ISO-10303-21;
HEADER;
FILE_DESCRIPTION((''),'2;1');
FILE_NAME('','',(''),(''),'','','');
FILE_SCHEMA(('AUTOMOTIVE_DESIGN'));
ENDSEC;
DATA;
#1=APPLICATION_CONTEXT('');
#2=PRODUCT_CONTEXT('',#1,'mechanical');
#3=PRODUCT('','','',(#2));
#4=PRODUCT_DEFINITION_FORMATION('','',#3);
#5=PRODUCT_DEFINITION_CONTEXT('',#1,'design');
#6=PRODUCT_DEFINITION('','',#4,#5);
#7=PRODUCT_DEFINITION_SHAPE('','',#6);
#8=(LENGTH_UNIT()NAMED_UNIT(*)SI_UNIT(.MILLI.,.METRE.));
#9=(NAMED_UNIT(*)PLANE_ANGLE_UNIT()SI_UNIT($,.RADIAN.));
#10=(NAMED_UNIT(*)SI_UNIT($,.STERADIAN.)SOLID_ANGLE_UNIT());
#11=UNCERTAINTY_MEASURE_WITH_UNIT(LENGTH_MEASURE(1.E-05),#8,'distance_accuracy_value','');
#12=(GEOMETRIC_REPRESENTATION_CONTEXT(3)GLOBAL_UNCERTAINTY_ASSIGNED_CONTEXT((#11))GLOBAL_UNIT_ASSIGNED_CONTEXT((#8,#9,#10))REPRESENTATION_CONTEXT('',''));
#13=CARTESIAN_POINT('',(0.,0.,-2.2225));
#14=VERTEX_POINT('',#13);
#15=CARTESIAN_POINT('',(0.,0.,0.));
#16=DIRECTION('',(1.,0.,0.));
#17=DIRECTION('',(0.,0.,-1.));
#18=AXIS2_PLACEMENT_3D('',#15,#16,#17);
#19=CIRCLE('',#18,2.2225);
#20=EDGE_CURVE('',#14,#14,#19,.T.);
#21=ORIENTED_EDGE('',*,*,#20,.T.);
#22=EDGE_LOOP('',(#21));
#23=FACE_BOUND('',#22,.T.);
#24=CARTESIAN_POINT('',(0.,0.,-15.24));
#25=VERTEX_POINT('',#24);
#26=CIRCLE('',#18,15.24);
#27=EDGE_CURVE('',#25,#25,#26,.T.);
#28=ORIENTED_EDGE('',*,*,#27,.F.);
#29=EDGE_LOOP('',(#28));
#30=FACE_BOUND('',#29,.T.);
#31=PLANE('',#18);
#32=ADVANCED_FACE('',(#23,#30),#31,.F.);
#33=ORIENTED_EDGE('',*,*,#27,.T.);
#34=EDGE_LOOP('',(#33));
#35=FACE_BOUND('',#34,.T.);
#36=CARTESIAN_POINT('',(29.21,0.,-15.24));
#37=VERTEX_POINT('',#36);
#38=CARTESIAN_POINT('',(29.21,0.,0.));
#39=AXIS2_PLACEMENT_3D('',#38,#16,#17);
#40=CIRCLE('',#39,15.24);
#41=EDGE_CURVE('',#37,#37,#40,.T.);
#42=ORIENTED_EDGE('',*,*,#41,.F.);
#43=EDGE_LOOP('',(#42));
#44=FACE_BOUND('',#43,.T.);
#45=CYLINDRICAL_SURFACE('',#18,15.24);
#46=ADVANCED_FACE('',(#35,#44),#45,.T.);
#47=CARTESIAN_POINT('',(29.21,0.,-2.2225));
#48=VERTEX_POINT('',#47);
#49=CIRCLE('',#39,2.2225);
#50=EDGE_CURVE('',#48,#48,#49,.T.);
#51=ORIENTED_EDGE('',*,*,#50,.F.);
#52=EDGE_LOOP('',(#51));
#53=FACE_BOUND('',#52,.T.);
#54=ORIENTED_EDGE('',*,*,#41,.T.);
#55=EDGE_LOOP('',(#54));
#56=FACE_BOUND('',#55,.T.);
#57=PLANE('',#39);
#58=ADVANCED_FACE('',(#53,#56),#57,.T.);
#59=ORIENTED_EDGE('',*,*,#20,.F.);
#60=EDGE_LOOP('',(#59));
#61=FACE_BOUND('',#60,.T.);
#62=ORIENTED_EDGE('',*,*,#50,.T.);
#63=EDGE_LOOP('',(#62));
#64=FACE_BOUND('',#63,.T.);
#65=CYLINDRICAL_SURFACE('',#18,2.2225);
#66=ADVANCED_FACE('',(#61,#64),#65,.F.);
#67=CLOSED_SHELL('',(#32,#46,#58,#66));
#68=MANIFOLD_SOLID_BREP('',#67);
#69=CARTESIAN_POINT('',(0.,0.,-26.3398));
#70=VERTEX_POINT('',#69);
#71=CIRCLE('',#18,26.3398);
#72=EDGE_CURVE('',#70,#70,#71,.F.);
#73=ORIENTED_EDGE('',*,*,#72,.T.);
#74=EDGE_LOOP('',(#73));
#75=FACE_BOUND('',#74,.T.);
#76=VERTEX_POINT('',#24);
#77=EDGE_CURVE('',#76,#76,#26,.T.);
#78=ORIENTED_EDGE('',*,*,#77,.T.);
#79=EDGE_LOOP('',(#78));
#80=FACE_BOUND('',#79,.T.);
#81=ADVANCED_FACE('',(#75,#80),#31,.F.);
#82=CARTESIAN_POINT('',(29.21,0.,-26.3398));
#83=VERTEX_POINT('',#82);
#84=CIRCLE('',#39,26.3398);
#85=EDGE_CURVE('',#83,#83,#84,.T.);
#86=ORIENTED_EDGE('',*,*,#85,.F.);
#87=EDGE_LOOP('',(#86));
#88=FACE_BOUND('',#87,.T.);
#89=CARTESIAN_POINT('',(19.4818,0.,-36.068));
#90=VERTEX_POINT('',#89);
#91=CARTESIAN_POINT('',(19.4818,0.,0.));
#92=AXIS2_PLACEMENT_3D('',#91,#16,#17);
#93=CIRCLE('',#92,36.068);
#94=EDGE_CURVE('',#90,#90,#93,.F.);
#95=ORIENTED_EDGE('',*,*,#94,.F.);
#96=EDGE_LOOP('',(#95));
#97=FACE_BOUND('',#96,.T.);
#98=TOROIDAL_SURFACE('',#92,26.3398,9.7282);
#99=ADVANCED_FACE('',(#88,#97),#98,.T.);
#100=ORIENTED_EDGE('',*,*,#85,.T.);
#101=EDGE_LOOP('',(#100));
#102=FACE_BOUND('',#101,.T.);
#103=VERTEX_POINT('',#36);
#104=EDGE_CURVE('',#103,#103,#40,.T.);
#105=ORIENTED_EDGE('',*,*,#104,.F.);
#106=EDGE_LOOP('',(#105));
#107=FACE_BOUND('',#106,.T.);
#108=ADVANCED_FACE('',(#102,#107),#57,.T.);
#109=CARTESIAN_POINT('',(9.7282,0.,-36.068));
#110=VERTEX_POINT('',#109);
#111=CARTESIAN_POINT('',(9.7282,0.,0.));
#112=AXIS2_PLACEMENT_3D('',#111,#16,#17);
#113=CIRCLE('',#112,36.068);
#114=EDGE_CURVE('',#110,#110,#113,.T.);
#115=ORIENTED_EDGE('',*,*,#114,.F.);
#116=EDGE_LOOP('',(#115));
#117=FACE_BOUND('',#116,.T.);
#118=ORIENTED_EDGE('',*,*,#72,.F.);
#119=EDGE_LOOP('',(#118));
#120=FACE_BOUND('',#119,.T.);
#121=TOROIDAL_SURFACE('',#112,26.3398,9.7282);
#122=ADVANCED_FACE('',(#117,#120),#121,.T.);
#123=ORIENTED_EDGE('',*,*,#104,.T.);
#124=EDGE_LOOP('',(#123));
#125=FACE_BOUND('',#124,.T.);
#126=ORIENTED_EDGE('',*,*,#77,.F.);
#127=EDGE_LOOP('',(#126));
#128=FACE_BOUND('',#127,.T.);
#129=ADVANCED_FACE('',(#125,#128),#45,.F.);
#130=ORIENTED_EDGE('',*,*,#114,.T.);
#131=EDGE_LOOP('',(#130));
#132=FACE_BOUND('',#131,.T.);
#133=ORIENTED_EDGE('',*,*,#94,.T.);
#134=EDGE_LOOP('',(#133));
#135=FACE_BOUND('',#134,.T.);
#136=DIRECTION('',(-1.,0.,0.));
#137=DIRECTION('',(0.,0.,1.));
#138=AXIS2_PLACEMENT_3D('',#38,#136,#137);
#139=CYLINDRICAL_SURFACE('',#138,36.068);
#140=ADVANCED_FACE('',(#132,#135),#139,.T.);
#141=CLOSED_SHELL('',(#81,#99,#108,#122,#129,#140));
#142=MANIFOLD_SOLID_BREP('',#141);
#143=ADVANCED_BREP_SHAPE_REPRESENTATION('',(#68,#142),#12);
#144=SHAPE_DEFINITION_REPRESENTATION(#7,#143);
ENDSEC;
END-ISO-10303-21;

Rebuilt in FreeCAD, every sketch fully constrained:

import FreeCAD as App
import Part
import Sketcher

V = App.Vector
Q = App.Units.Quantity


def edges_at(feature, points):
    """Names of the edges that pass closest to the given points."""
    edges = feature.Shape.Edges
    near = lambda p: min(range(len(edges)), key=lambda i: edges[i].distToShape(Part.Vertex(*p))[0])
    return sorted({f"Edge{near(p) + 1}" for p in points})

doc = App.newDocument("Part")
params = doc.addObject("Spreadsheet::Sheet", "Params")
for row, (alias, value) in enumerate([
    ("sketch1_diameter", "2.84 in"),
    ("pad1_length", "1.15 in"),
    ("fillet_radius", "0.383 in"),
    ("fillet2_radius", "0.383 in"),
    ("sketch2_diameter", "1.2 in"),
    ("sketch3_diameter", "1.2 in"),
    ("pad2_length", "1.15 in"),
    ("sketch4_diameter", "0.175 in"),
    ("pocket2_length", "1.15 in"),
], start=1):
    params.set(f"A{row}", alias)
    params.set(f"B{row}", "=" + value)
    params.setAlias(f"B{row}", alias)

body = doc.addObject("PartDesign::Body", "Body")

# Sketch on YZ plane
sketch1 = doc.addObject("Sketcher::SketchObject", "Sketch")
body.addObject(sketch1)
sketch1.AttachmentSupport = (doc.YZ_Plane, [""])
sketch1.MapMode = "FlatFace"
sketch1.addGeometry(Part.Circle(V(0, 0, 0), V(0, 0, 1), 36), False)
sketch1.addConstraint([
    Sketcher.Constraint("Coincident", 0, 3, -1, 1),
    Sketcher.Constraint("Diameter", 0, Q("2.84 in")),
])
sketch1.setExpression("Constraints[1]", "Params.sketch1_diameter")
pad1 = doc.addObject("PartDesign::Pad", "Pad")
body.addObject(pad1)
pad1.Profile = sketch1
pad1.setExpression("Length", "Params.pad1_length")
doc.recompute()

fillet = doc.addObject("PartDesign::Fillet", "Fillet")
body.addObject(fillet)
fillet.Base = (pad1, edges_at(pad1, [(29.21, 0, -36.068)]))
fillet.setExpression("Radius", "Params.fillet_radius")
doc.recompute()

fillet2 = doc.addObject("PartDesign::Fillet", "Fillet001")
body.addObject(fillet2)
fillet2.Base = (fillet, edges_at(fillet, [(0, 0, -36.068)]))
fillet2.setExpression("Radius", "Params.fillet2_radius")

# Sketch on YZ plane
sketch2 = doc.addObject("Sketcher::SketchObject", "Sketch001")
body.addObject(sketch2)
sketch2.AttachmentSupport = (doc.YZ_Plane, [""])
sketch2.MapMode = "FlatFace"
sketch2.AttachmentOffset = App.Placement(V(0, 0, 1.15 * 25.4), App.Rotation())
sketch2.addGeometry(Part.Circle(V(0, 0, 0), V(0, 0, 1), 15), False)
sketch2.addConstraint([
    Sketcher.Constraint("Coincident", 0, 3, -1, 1),
    Sketcher.Constraint("Diameter", 0, Q("1.2 in")),
])
sketch2.setExpression("Constraints[1]", "Params.sketch2_diameter")
pocket1 = doc.addObject("PartDesign::Pocket", "Pocket")
body.addObject(pocket1)
pocket1.Profile = sketch2
pocket1.Type = "ThroughAll"
body2 = doc.addObject("PartDesign::Body", "Body001")

# Sketch on YZ plane
sketch3 = doc.addObject("Sketcher::SketchObject", "Sketch002")
body2.addObject(sketch3)
sketch3.AttachmentSupport = (doc.getObject("YZ_Plane001"), [""])
sketch3.MapMode = "FlatFace"
sketch3.AttachmentOffset = App.Placement(V(0, 0, 1.15 * 25.4), App.Rotation())
sketch3.addGeometry(Part.Circle(V(0, 0, 0), V(0, 0, 1), 15), False)
sketch3.addConstraint([
    Sketcher.Constraint("Coincident", 0, 3, -1, 1),
    Sketcher.Constraint("Diameter", 0, Q("1.2 in")),
])
sketch3.setExpression("Constraints[1]", "Params.sketch3_diameter")
pad2 = doc.addObject("PartDesign::Pad", "Pad001")
body2.addObject(pad2)
pad2.Profile = sketch3
pad2.setExpression("Length", "Params.pad2_length")
pad2.Reversed = True

# Sketch on YZ plane
sketch4 = doc.addObject("Sketcher::SketchObject", "Sketch003")
body2.addObject(sketch4)
sketch4.AttachmentSupport = (doc.getObject("YZ_Plane001"), [""])
sketch4.MapMode = "FlatFace"
sketch4.AttachmentOffset = App.Placement(V(0, 0, 1.15 * 25.4), App.Rotation())
sketch4.addGeometry(Part.Circle(V(0, 0, 0), V(0, 0, 1), 2.2), False)
sketch4.addConstraint([
    Sketcher.Constraint("Coincident", 0, 3, -1, 1),
    Sketcher.Constraint("Diameter", 0, Q("0.175 in")),
])
sketch4.setExpression("Constraints[1]", "Params.sketch4_diameter")
pocket2 = doc.addObject("PartDesign::Pocket", "Pocket001")
body2.addObject(pocket2)
pocket2.Profile = sketch4
pocket2.setExpression("Length", "Params.pocket2_length")

doc.recompute()
